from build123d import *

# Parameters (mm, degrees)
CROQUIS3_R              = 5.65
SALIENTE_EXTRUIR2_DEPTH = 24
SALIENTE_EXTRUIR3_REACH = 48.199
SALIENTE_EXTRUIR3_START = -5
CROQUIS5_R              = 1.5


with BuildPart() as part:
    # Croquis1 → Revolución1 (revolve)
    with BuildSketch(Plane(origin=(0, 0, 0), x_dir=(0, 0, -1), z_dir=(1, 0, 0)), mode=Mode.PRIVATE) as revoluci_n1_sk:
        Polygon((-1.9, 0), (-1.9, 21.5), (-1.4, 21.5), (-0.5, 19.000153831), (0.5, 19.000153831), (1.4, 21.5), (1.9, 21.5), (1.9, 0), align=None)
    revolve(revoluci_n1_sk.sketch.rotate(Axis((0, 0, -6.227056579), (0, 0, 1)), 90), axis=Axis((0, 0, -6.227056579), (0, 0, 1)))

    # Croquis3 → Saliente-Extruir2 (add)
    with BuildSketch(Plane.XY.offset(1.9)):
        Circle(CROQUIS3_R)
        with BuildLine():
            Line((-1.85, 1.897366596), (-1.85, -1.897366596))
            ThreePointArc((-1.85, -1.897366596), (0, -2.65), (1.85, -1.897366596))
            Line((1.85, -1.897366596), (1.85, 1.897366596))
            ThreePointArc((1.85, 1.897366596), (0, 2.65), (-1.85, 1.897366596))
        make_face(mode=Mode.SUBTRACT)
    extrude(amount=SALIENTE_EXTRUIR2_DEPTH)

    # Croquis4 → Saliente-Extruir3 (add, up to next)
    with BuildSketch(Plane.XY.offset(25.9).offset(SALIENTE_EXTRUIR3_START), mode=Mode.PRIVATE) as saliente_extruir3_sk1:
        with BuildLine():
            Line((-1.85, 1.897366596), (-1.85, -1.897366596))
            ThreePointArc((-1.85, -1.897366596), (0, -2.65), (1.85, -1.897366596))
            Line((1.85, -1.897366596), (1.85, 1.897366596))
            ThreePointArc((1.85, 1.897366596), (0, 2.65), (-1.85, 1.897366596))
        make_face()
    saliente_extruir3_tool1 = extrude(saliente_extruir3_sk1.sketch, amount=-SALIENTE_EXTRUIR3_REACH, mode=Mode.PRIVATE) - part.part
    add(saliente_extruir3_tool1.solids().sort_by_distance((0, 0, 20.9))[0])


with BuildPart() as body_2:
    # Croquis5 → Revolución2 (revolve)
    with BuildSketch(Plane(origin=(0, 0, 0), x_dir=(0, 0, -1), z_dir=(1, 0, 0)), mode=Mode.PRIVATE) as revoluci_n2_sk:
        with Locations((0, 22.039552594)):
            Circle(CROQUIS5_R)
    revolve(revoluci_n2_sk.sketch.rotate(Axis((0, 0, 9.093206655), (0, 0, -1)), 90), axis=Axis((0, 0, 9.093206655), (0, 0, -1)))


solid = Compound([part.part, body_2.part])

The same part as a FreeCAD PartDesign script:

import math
import FreeCAD as App
import Part
import Sketcher
Q = App.Units.Quantity


def add_polygon(sketch, points):
    """Adds a closed chain of lines whose ends are joined by coincident constraints."""
    first, n = sketch.GeometryCount, len(points)
    for a, b in zip(points, points[1:] + points[:1]):
        sketch.addGeometry(Part.LineSegment(App.Vector(*a, 0), App.Vector(*b, 0)), False)
    for i in range(n):
        sketch.addConstraint(Sketcher.Constraint("Coincident", first + i, 2, first + (i + 1) % n, 1))

doc = App.newDocument("Part")
body = doc.addObject("PartDesign::Body", "Body")

sketch1 = body.newObject("Sketcher::SketchObject", "Sketch")
sketch1.AttachmentSupport = (doc.getObject("YZ_Plane"), [""])
sketch1.MapMode = "FlatFace"
add_polygon(sketch1, [(21.5, 1.9), (0, 1.9), (0, -1.9), (21.5, -1.9), (21.5, -1.4), (19, -0.5), (19, 0.5), (21.5, 1.4)])
sketch1.addConstraint([
    Sketcher.Constraint("Horizontal", 0),
    Sketcher.Constraint("Vertical", 1),
    Sketcher.Constraint("Horizontal", 2),
    Sketcher.Constraint("Vertical", 3),
    Sketcher.Constraint("Vertical", 5),
    Sketcher.Constraint("Vertical", 7),
    Sketcher.Constraint("Symmetric", 0, 2, 1, 2, -1, 1),
    Sketcher.Constraint("Symmetric", 3, 2, 6, 2, -1),
    Sketcher.Constraint("Equal", 4, 6),
    Sketcher.Constraint("DistanceY", 5, 1, 5, 2, Q("1 mm")),
    Sketcher.Constraint("DistanceX", 0, 2, 0, 1, Q("21.5 mm")),
    Sketcher.Constraint("DistanceY", 1, 2, 1, 1, Q("3.8 mm")),
    Sketcher.Constraint("DistanceY", 3, 1, 3, 2, Q("0.5 mm")),
    Sketcher.Constraint("Angle", 4, Q("160.2 deg")),
])
revolution = body.newObject("PartDesign::Revolution", "Revolution")
revolution.Profile = sketch1
revolution.ReferenceAxis = (sketch1, ["V_Axis"])
revolution.Angle = 360

sketch2 = body.newObject("Sketcher::SketchObject", "Sketch001")
sketch2.AttachmentSupport = (doc.getObject("XY_Plane"), [""])
sketch2.MapMode = "FlatFace"
sketch2.AttachmentOffset = App.Placement(App.Vector(0, 0, 1.9), App.Rotation())
sketch2.addGeometry([
    Part.Circle(App.Vector(0, 0, 0), App.Vector(0, 0, 1), 5.7),
    Part.LineSegment(App.Vector(-1.9, -1.9, 0), App.Vector(-1.9, 1.9, 0)),
    Part.ArcOfCircle(Part.Circle(App.Vector(0, 0, 0), App.Vector(0, 0, 1), 2.6), math.radians(46), math.radians(134)),
    Part.LineSegment(App.Vector(1.9, 1.9, 0), App.Vector(1.9, -1.9, 0)),
    Part.ArcOfCircle(Part.Circle(App.Vector(0, 0, 0), App.Vector(0, 0, 1), 2.6), math.radians(-134), math.radians(-46)),
], False)
sketch2.addConstraint([
    Sketcher.Constraint("Coincident", 1, 2, 2, 2),
    Sketcher.Constraint("Coincident", 2, 1, 3, 1),
    Sketcher.Constraint("Coincident", 3, 2, 4, 2),
    Sketcher.Constraint("Coincident", 4, 1, 1, 1),
    Sketcher.Constraint("Vertical", 1),
    Sketcher.Constraint("Vertical", 3),
    Sketcher.Constraint("Coincident", 0, 3, -1, 1),
    Sketcher.Constraint("Coincident", 2, 3, -1, 1),
    Sketcher.Constraint("Coincident", 4, 3, -1, 1),
    Sketcher.Constraint("Equal", 2, 4),
    Sketcher.Constraint("Horizontal", 1, 2, 2, 1),
    Sketcher.Constraint("Diameter", 0, Q("11.3 mm")),
    Sketcher.Constraint("Radius", 2, Q("2.65 mm")),
    Sketcher.Constraint("DistanceX", 1, 2, 2, 1, Q("3.7 mm")),
])
pad1 = body.newObject("PartDesign::Pad", "Pad")
pad1.Profile = sketch2
pad1.Length = 24

sketch3 = body.newObject("Sketcher::SketchObject", "Sketch002")
sketch3.AttachmentSupport = (doc.getObject("XY_Plane"), [""])
sketch3.MapMode = "FlatFace"
sketch3.AttachmentOffset = App.Placement(App.Vector(0, 0, 20.9), App.Rotation())
sketch3.addGeometry([
    Part.LineSegment(App.Vector(-1.9, 1.9, 0), App.Vector(-1.9, -1.9, 0)),
    Part.ArcOfCircle(Part.Circle(App.Vector(0, 0, 0), App.Vector(0, 0, 1), 2.6), math.radians(-134), math.radians(-46)),
    Part.LineSegment(App.Vector(1.9, -1.9, 0), App.Vector(1.9, 1.9, 0)),
    Part.ArcOfCircle(Part.Circle(App.Vector(0, 0, 0), App.Vector(0, 0, 1), 2.6), math.radians(46), math.radians(134)),
], False)
sketch3.addConstraint([
    Sketcher.Constraint("Coincident", 0, 2, 1, 1),
    Sketcher.Constraint("Coincident", 1, 2, 2, 1),
    Sketcher.Constraint("Coincident", 2, 2, 3, 1),
    Sketcher.Constraint("Coincident", 3, 2, 0, 1),
    Sketcher.Constraint("Vertical", 0),
    Sketcher.Constraint("Vertical", 2),
    Sketcher.Constraint("Coincident", 1, 3, -1, 1),
    Sketcher.Constraint("Coincident", 3, 3, -1, 1),
    Sketcher.Constraint("Equal", 1, 3),
    Sketcher.Constraint("Horizontal", 0, 2, 1, 2),
    Sketcher.Constraint("Radius", 1, Q("2.65 mm")),
    Sketcher.Constraint("DistanceX", 0, 2, 1, 2, Q("3.7 mm")),
])
pad2 = body.newObject("PartDesign::Pad", "Pad001")
pad2.Profile = sketch3
pad2.Type = "UpToFirst"
pad2.Reversed = True
body2 = doc.addObject("PartDesign::Body", "Body001")

sketch4 = body2.newObject("Sketcher::SketchObject", "Sketch003")
sketch4.AttachmentSupport = (doc.getObject("YZ_Plane001"), [""])
sketch4.MapMode = "FlatFace"
sketch4.addGeometry(Part.Circle(App.Vector(22, 0, 0), App.Vector(0, 0, 1), 1.5), False)
sketch4.addConstraint([
    Sketcher.Constraint("PointOnObject", 0, 3, -1),
    Sketcher.Constraint("Diameter", 0, Q("3 mm")),
    Sketcher.Constraint("DistanceX", -1, 1, 0, 3, Q("22.039553 mm")),
])
revolution2 = body2.newObject("PartDesign::Revolution", "Revolution001")
revolution2.Profile = sketch4
revolution2.ReferenceAxis = (sketch4, ["V_Axis"])
revolution2.Angle = 360

doc.recompute()
